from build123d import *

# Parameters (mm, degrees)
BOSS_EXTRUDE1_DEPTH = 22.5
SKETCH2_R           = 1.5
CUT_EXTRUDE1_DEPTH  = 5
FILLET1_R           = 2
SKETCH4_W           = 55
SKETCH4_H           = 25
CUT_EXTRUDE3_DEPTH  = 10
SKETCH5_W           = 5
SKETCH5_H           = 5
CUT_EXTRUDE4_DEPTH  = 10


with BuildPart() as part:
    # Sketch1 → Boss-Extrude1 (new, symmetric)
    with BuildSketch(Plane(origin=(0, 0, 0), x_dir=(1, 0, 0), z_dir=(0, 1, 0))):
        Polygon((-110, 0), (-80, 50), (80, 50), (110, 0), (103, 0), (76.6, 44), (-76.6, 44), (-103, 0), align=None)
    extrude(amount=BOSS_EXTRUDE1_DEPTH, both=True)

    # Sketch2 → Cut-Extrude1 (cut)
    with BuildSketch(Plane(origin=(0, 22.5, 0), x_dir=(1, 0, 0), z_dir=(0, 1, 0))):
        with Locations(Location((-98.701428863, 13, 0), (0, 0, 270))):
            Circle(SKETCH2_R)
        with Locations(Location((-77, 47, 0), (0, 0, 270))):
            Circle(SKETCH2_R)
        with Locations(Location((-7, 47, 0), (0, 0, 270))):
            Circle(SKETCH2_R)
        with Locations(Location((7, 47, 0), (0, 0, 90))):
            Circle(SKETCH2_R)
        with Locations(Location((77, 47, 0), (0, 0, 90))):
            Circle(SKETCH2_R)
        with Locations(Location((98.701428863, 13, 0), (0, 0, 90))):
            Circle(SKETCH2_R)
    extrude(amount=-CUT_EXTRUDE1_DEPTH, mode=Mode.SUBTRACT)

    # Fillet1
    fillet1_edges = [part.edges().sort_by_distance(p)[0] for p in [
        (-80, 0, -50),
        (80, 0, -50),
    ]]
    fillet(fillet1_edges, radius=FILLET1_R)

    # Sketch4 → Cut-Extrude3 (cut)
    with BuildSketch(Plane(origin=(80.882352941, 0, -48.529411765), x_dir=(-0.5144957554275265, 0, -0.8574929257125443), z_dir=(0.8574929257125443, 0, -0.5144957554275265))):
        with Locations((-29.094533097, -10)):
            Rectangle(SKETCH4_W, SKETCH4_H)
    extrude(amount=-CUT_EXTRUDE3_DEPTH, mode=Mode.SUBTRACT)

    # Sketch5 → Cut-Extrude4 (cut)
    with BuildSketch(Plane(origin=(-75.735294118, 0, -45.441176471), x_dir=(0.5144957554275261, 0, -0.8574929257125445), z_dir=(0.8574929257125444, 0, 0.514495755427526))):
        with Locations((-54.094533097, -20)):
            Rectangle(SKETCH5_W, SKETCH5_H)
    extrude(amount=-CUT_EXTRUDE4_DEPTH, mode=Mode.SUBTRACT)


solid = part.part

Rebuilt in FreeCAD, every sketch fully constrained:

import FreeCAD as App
import Part
import Sketcher

V = App.Vector


def edges_at(feature, points):
    """Names of the edges that pass closest to the given points."""
    edges = feature.Shape.Edges
    near = lambda p: min(range(len(edges)), key=lambda i: edges[i].distToShape(Part.Vertex(*p))[0])
    return sorted({f"Edge{near(p) + 1}" for p in points})

doc = App.newDocument("Part")
body = doc.addObject("PartDesign::Body", "Body")

# Sketch on XZ plane
sketch1 = body.newObject("Sketcher::SketchObject", "Sketch")
sketch1.AttachmentSupport = (doc.getObject("XZ_Plane"), [""])
sketch1.MapMode = "FlatFace"
sketch1.addGeometry(Part.LineSegment(V(-80, -50, 0), V(-110, 0, 0)), False)
sketch1.addGeometry(Part.LineSegment(V(-110, 0, 0), V(-103, 0, 0)), False)
sketch1.addGeometry(Part.LineSegment(V(-103, 0, 0), V(-77, -44, 0)), False)
sketch1.addGeometry(Part.LineSegment(V(-77, -44, 0), V(77, -44, 0)), False)
sketch1.addGeometry(Part.LineSegment(V(77, -44, 0), V(103, 0, 0)), False)
sketch1.addGeometry(Part.LineSegment(V(103, 0, 0), V(110, 0, 0)), False)
sketch1.addGeometry(Part.LineSegment(V(110, 0, 0), V(80, -50, 0)), False)
sketch1.addGeometry(Part.LineSegment(V(80, -50, 0), V(-80, -50, 0)), False)
sketch1.addConstraint(Sketcher.Constraint("Coincident", 0, 2, 1, 1))
sketch1.addConstraint(Sketcher.Constraint("Coincident", 1, 2, 2, 1))
sketch1.addConstraint(Sketcher.Constraint("Coincident", 2, 2, 3, 1))
sketch1.addConstraint(Sketcher.Constraint("Coincident", 3, 2, 4, 1))
sketch1.addConstraint(Sketcher.Constraint("Coincident", 4, 2, 5, 1))
sketch1.addConstraint(Sketcher.Constraint("Coincident", 5, 2, 6, 1))
sketch1.addConstraint(Sketcher.Constraint("Coincident", 6, 2, 7, 1))
sketch1.addConstraint(Sketcher.Constraint("Coincident", 7, 2, 0, 1))
sketch1.addConstraint(Sketcher.Constraint("Horizontal", 1))
sketch1.addConstraint(Sketcher.Constraint("Horizontal", 3))
sketch1.addConstraint(Sketcher.Constraint("Horizontal", 5))
sketch1.addConstraint(Sketcher.Constraint("Horizontal", 7))
sketch1.addConstraint(Sketcher.Constraint("Symmetric", 1, 2, 4, 2, -1, 1))
sketch1.addConstraint(Sketcher.Constraint("Symmetric", 0, 2, 5, 2, -2))
sketch1.addConstraint(Sketcher.Constraint("Parallel", 0, 2))
sketch1.addConstraint(Sketcher.Constraint("Parallel", 4, 6))
sketch1.addConstraint(Sketcher.Constraint("Equal", 2, 4))
sketch1.addConstraint(Sketcher.Constraint("DistanceX", 1, 1, 1, 2, 7.0))
sketch1.addConstraint(Sketcher.Constraint("DistanceX", 7, 2, 7, 1, 160.0))
sketch1.addConstraint(Sketcher.Constraint("DistanceX", 3, 1, 3, 2, 153.2))
sketch1.addConstraint(Sketcher.Constraint("DistanceX", 0, 2, -1, 1, 110.0))
sketch1.addConstraint(Sketcher.Constraint("DistanceY", 2, 2, -1, 1, 44.0))
pad1 = body.newObject("PartDesign::Pad", "Pad")
pad1.Profile = sketch1
pad1.Length = 45
pad1.Midplane = True

# Sketch on XZ plane
sketch2 = body.newObject("Sketcher::SketchObject", "Sketch001")
sketch2.AttachmentSupport = (doc.getObject("XZ_Plane"), [""])
sketch2.MapMode = "FlatFace"
sketch2.AttachmentOffset = App.Placement(V(0, 0, -22.5), App.Rotation())
sketch2.addGeometry(Part.Circle(V(-98.7, -13, 0), V(0, 0, 1), 1.5), False)
sketch2.addGeometry(Part.Circle(V(-77, -47, 0), V(0, 0, 1), 1.5), False)
sketch2.addGeometry(Part.Circle(V(-7, -47, 0), V(0, 0, 1), 1.5), False)
sketch2.addGeometry(Part.Circle(V(7, -47, 0), V(0, 0, 1), 1.5), False)
sketch2.addGeometry(Part.Circle(V(77, -47, 0), V(0, 0, 1), 1.5), False)
sketch2.addGeometry(Part.Circle(V(98.7, -13, 0), V(0, 0, 1), 1.5), False)
sketch2.addConstraint(Sketcher.Constraint("Equal", 0, 1))
sketch2.addConstraint(Sketcher.Constraint("Equal", 1, 2))
sketch2.addConstraint(Sketcher.Constraint("Equal", 2, 3))
sketch2.addConstraint(Sketcher.Constraint("Equal", 3, 4))
sketch2.addConstraint(Sketcher.Constraint("Equal", 4, 5))
sketch2.addConstraint(Sketcher.Constraint("Symmetric", 2, 3, 3, 3, -2))
sketch2.addConstraint(Sketcher.Constraint("Symmetric", 1, 3, 4, 3, -2))
sketch2.addConstraint(Sketcher.Constraint("Symmetric", 0, 3, 5, 3, -2))
sketch2.addConstraint(Sketcher.Constraint("Horizontal", 1, 3, 2, 3))
sketch2.addConstraint(Sketcher.Constraint("Diameter", 0, 3.0))
sketch2.addConstraint(Sketcher.Constraint("DistanceY", 0, 3, -1, 1, 13.0))
sketch2.addConstraint(Sketcher.Constraint("DistanceX", 1, 3, -1, 1, 77.0))
sketch2.addConstraint(Sketcher.Constraint("DistanceY", 1, 3, -1, 1, 47.0))
sketch2.addConstraint(Sketcher.Constraint("DistanceX", 2, 3, -1, 1, 7.0))
sketch2.addConstraint(Sketcher.Constraint("DistanceX", 0, 3, -1, 1, 98.701429))
pocket1 = body.newObject("PartDesign::Pocket", "Pocket")
pocket1.Profile = sketch2
pocket1.Length = 5
pocket1.Reversed = True
doc.recompute()

fillet = body.newObject("PartDesign::Fillet", "Fillet")
fillet.Base = (pocket1, edges_at(pocket1, [(-80, 0, -50), (80, 0, -50)]))
fillet.Radius = 2

# Sketch on an angled plane
sketch3 = body.newObject("Sketcher::SketchObject", "Sketch002")
sketch3.Placement = App.Placement(V(80.882353, 0, -48.529412), App.Rotation(V(-0.514495755, 0, -0.857492926), V(0, 1, 0), V(0.857492926, 0, -0.514495755), "ZXY"))
sketch3.addGeometry(Part.LineSegment(V(-57, 2, 0), V(-57, -23, 0)), False)
sketch3.addGeometry(Part.LineSegment(V(-57, -23, 0), V(-2, -23, 0)), False)
sketch3.addGeometry(Part.LineSegment(V(-2, -23, 0), V(-2, 2, 0)), False)
sketch3.addGeometry(Part.LineSegment(V(-2, 2, 0), V(-57, 2, 0)), False)
sketch3.addConstraint(Sketcher.Constraint("Coincident", 0, 2, 1, 1))
sketch3.addConstraint(Sketcher.Constraint("Coincident", 1, 2, 2, 1))
sketch3.addConstraint(Sketcher.Constraint("Coincident", 2, 2, 3, 1))
sketch3.addConstraint(Sketcher.Constraint("Coincident", 3, 2, 0, 1))
sketch3.addConstraint(Sketcher.Constraint("Vertical", 0))
sketch3.addConstraint(Sketcher.Constraint("Horizontal", 1))
sketch3.addConstraint(Sketcher.Constraint("Vertical", 2))
sketch3.addConstraint(Sketcher.Constraint("Horizontal", 3))
sketch3.addConstraint(Sketcher.Constraint("DistanceX", 1, 1, 1, 2, 55.0))
sketch3.addConstraint(Sketcher.Constraint("DistanceY", 0, 2, 0, 1, 25.0))
sketch3.addConstraint(Sketcher.Constraint("DistanceY", 0, 2, -1, 1, 22.5))
sketch3.addConstraint(Sketcher.Constraint("DistanceX", 0, 2, -1, 1, 56.594533))
pocket2 = body.newObject("PartDesign::Pocket", "Pocket001")
pocket2.Profile = sketch3
pocket2.Length = 10

# Sketch on an angled plane
sketch4 = body.newObject("Sketcher::SketchObject", "Sketch003")
sketch4.Placement = App.Placement(V(-75.735294, 0, -45.441176), App.Rotation(V(0.514495755, 0, -0.857492926), V(0, 1, 0), V(0.857492926, 0, 0.514495755), "ZXY"))
sketch4.addGeometry(Part.LineSegment(V(-57, -18, 0), V(-57, -23, 0)), False)
sketch4.addGeometry(Part.LineSegment(V(-57, -23, 0), V(-52, -23, 0)), False)
sketch4.addGeometry(Part.LineSegment(V(-52, -23, 0), V(-52, -18, 0)), False)
sketch4.addGeometry(Part.LineSegment(V(-52, -18, 0), V(-57, -18, 0)), False)
sketch4.addConstraint(Sketcher.Constraint("Coincident", 0, 2, 1, 1))
sketch4.addConstraint(Sketcher.Constraint("Coincident", 1, 2, 2, 1))
sketch4.addConstraint(Sketcher.Constraint("Coincident", 2, 2, 3, 1))
sketch4.addConstraint(Sketcher.Constraint("Coincident", 3, 2, 0, 1))
sketch4.addConstraint(Sketcher.Constraint("Vertical", 0))
sketch4.addConstraint(Sketcher.Constraint("Horizontal", 1))
sketch4.addConstraint(Sketcher.Constraint("Vertical", 2))
sketch4.addConstraint(Sketcher.Constraint("Horizontal", 3))
sketch4.addConstraint(Sketcher.Constraint("Equal", 3, 0))
sketch4.addConstraint(Sketcher.Constraint("DistanceX", 1, 1, 1, 2, 5.0))
sketch4.addConstraint(Sketcher.Constraint("DistanceY", 0, 2, -1, 1, 22.5))
sketch4.addConstraint(Sketcher.Constraint("DistanceX", 0, 2, -1, 1, 56.594533))
pocket3 = body.newObject("PartDesign::Pocket", "Pocket002")
pocket3.Profile = sketch4
pocket3.Length = 10

doc.recompute()
